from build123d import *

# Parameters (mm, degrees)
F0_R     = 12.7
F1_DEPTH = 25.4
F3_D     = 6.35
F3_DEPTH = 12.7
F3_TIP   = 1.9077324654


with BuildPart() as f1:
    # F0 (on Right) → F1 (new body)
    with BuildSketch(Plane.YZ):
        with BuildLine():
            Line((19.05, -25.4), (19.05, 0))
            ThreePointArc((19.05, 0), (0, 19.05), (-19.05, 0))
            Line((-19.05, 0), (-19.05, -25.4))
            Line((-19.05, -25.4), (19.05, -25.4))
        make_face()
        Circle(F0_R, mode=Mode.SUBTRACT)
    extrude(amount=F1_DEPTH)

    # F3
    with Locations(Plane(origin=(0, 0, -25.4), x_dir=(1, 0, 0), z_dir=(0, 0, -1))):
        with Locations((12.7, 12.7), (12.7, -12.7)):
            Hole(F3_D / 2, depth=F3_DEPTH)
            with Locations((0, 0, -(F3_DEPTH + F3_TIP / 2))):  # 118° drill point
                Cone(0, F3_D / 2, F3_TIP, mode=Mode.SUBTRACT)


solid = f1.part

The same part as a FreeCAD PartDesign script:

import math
import FreeCAD as App
import Part
import Sketcher
Q = App.Units.Quantity

doc = App.newDocument("Part")
body = doc.addObject("PartDesign::Body", "Body")

sketch1 = body.newObject("Sketcher::SketchObject", "Sketch")
sketch1.AttachmentSupport = (doc.getObject("YZ_Plane"), [""])
sketch1.MapMode = "FlatFace"
sketch1.addGeometry(Part.LineSegment(App.Vector(19, -25, 0), App.Vector(19, 0, 0)), False)
sketch1.addGeometry(Part.ArcOfCircle(Part.Circle(App.Vector(0, 0, 0), App.Vector(0, 0, 1), 19), math.radians(0), math.radians(180)), False)
sketch1.addGeometry(Part.LineSegment(App.Vector(-19, 0, 0), App.Vector(-19, -25, 0)), False)
sketch1.addGeometry(Part.LineSegment(App.Vector(-19, -25, 0), App.Vector(19, -25, 0)), False)
sketch1.addGeometry(Part.Circle(App.Vector(0, 0, 0), App.Vector(0, 0, 1), 13), False)
sketch1.addConstraint(Sketcher.Constraint("Tangent", 0, 2, 1, 1))
sketch1.addConstraint(Sketcher.Constraint("Tangent", 1, 2, 2, 1))
sketch1.addConstraint(Sketcher.Constraint("Coincident", 2, 2, 3, 1))
sketch1.addConstraint(Sketcher.Constraint("Coincident", 3, 2, 0, 1))
sketch1.addConstraint(Sketcher.Constraint("Vertical", 0))
sketch1.addConstraint(Sketcher.Constraint("Vertical", 2))
sketch1.addConstraint(Sketcher.Constraint("Horizontal", 3))
sketch1.addConstraint(Sketcher.Constraint("Coincident", 1, 3, -1, 1))
sketch1.addConstraint(Sketcher.Constraint("Coincident", 4, 3, -1, 1))
sketch1.addConstraint(Sketcher.Constraint("Diameter", 4, Q("1 in")))
sketch1.addConstraint(Sketcher.Constraint("DistanceY", 0, 1, 0, 2, Q("1 in")))
sketch1.addConstraint(Sketcher.Constraint("Radius", 1, Q("0.75 in")))
pad1 = body.newObject("PartDesign::Pad", "Pad")
pad1.Profile = sketch1
pad1.Length = Q("1 in")

sketch2 = body.newObject("Sketcher::SketchObject", "Sketch001")
sketch2.AttachmentSupport = (doc.getObject("XY_Plane"), [""])
sketch2.MapMode = "FlatFace"
sketch2.AttachmentOffset = App.Placement(App.Vector(0, 0, -1 * 25.4), App.Rotation())
sketch2.addGeometry(Part.Circle(App.Vector(12.7, -12.7, 0), App.Vector(0, 0, 1), 3.2), False)
sketch2.addGeometry(Part.Circle(App.Vector(12.7, 12.7, 0), App.Vector(0, 0, 1), 3.2), False)
sketch2.addConstraint(Sketcher.Constraint("Equal", 0, 1))
sketch2.addConstraint(Sketcher.Constraint("Symmetric", 0, 3, 1, 3, -1))
sketch2.addConstraint(Sketcher.Constraint("Diameter", 0, Q("0.25 in")))
sketch2.addConstraint(Sketcher.Constraint("DistanceY", 0, 3, 1, 3, Q("1 in")))
sketch2.addConstraint(Sketcher.Constraint("DistanceX", -1, 1, 0, 3, Q("0.5 in")))
doc.recompute()
hole = body.newObject("PartDesign::Hole", "Hole")
hole.Profile = sketch2
hole.ThreadType = "None"
hole.Diameter = Q("0.25 in")
hole.DepthType = "Dimension"
hole.Depth = Q("0.5 in")
hole.DrillPoint = "Angled"
hole.DrillPointAngle = 118
hole.Reversed = True

doc.recompute()
